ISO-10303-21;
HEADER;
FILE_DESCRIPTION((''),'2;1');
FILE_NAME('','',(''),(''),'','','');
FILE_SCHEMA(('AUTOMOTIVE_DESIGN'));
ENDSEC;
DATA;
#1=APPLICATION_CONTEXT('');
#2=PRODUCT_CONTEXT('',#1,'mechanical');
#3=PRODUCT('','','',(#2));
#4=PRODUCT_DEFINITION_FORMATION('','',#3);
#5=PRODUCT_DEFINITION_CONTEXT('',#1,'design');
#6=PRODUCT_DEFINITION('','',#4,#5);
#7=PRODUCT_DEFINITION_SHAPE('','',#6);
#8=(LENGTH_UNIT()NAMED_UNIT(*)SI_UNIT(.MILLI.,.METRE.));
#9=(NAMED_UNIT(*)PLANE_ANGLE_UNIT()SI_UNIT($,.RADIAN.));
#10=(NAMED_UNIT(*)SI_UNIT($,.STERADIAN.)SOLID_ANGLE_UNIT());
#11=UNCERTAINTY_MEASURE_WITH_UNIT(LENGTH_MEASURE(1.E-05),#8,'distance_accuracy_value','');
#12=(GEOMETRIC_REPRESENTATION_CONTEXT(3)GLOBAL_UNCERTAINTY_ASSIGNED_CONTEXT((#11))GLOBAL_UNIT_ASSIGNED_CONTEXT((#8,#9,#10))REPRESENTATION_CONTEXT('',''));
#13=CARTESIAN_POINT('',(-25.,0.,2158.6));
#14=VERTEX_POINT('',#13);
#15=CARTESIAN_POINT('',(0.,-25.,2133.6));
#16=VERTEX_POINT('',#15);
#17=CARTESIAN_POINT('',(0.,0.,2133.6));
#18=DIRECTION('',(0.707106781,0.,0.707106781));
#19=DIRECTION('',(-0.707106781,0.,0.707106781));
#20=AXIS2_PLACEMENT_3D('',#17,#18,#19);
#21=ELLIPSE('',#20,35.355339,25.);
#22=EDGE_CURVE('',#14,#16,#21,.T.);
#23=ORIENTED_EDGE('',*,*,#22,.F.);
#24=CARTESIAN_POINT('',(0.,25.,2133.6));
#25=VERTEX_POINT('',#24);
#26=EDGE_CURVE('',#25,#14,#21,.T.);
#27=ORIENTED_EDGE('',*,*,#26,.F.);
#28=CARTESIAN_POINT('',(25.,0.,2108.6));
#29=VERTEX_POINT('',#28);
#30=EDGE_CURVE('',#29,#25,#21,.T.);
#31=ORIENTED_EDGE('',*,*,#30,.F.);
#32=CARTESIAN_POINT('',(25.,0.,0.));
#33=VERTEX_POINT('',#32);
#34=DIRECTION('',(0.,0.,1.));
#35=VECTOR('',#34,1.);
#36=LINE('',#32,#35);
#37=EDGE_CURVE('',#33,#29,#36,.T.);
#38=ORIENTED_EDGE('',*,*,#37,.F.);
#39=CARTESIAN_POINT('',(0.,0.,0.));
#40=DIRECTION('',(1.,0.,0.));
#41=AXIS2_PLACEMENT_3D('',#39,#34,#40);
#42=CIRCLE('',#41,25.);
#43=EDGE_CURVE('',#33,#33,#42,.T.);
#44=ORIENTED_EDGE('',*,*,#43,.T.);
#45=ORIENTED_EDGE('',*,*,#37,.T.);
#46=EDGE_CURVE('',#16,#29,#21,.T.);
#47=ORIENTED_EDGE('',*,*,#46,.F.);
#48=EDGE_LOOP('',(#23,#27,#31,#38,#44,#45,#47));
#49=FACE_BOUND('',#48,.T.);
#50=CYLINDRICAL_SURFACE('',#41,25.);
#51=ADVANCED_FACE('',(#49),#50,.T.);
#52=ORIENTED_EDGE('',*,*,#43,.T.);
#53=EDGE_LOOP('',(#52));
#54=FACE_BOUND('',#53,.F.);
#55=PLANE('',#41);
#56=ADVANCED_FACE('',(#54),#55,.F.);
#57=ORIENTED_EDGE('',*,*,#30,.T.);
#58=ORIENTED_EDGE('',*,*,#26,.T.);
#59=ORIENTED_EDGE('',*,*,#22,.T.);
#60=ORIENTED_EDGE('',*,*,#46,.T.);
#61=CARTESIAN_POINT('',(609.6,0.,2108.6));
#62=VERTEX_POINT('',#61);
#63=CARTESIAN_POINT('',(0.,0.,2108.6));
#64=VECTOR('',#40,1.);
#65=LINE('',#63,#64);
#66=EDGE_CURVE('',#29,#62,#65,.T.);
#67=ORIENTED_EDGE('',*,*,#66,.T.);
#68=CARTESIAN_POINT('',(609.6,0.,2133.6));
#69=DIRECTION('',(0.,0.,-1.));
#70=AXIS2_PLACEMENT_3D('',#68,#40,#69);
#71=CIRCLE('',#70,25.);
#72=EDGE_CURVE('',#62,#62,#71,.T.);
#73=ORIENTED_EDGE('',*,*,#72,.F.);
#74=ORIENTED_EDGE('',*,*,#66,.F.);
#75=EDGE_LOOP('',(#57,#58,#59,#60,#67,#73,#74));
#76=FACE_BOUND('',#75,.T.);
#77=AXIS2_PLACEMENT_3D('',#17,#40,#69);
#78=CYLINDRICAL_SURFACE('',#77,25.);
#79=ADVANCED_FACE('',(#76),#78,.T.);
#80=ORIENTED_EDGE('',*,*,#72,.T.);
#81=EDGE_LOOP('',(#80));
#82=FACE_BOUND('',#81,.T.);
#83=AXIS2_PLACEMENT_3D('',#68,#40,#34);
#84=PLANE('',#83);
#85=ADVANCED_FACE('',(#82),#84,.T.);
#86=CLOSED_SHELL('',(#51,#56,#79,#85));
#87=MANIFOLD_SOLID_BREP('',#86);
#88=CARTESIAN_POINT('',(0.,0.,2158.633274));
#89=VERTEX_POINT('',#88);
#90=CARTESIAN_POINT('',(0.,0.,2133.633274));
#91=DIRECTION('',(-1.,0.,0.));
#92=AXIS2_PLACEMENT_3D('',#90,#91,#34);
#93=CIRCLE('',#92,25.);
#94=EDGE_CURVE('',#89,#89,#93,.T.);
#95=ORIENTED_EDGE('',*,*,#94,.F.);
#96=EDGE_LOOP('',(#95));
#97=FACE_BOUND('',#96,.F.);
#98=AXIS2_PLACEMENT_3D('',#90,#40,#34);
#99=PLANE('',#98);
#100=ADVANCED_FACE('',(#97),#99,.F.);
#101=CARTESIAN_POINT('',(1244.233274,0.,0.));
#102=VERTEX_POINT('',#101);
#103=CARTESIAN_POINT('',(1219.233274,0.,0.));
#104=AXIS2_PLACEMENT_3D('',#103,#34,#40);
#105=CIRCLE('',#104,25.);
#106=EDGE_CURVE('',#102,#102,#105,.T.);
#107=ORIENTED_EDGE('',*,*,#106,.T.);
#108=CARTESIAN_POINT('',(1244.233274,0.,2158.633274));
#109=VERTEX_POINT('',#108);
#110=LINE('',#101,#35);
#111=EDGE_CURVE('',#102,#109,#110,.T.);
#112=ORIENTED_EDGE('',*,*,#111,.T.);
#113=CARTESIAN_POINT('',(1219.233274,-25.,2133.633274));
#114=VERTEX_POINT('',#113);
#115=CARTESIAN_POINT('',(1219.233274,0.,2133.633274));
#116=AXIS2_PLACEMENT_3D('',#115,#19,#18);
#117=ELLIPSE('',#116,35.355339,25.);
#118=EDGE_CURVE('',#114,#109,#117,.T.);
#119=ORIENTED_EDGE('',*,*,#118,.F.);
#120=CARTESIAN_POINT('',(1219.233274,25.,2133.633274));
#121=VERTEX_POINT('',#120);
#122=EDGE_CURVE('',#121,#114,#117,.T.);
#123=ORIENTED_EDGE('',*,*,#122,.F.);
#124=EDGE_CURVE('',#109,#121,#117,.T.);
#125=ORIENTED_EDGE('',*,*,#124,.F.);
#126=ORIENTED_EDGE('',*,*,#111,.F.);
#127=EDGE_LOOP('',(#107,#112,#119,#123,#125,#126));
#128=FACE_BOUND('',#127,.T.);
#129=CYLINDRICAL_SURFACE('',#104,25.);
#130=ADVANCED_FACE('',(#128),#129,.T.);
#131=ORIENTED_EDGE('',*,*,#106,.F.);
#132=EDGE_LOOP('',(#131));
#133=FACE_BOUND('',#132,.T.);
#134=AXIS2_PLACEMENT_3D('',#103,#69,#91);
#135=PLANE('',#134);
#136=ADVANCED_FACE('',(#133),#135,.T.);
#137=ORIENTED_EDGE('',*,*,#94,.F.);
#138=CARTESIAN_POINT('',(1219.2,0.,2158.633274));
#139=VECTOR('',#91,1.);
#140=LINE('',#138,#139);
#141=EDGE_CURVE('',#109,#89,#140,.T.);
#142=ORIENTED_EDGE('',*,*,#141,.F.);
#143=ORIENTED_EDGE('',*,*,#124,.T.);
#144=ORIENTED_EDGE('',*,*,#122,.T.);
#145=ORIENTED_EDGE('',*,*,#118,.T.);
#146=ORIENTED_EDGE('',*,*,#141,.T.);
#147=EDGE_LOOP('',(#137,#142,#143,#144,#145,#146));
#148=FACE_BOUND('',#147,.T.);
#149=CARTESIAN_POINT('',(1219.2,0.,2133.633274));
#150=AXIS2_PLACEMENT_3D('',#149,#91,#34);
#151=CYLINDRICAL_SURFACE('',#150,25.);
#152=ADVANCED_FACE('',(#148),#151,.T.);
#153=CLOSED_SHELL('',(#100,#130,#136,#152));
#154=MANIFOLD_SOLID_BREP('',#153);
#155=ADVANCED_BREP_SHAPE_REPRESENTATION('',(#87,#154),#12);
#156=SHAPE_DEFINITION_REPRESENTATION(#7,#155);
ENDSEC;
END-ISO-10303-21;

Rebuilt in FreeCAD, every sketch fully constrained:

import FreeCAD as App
import Part
import Sketcher
from FreeCAD import Vector
Q = App.Units.Quantity

doc = App.newDocument("Part")
body = doc.addObject("PartDesign::Body", "Body")

sketch1 = doc.addObject("Sketcher::SketchObject", "Sketch")
body.addObject(sketch1)
sketch1.AttachmentSupport = (doc.XY_Plane, [""])
sketch1.MapMode = "FlatFace"
sketch1.addGeometry(Part.Circle(Vector(0, 0, 0), Vector(0, 0, 1), 25), False)
sketch1.addConstraint([
    Sketcher.Constraint("Coincident", 0, 3, -1, 1),
    Sketcher.Constraint("Diameter", 0, 50.0),
])

sketch2 = doc.addObject("Sketcher::SketchObject", "Sketch001")
body.addObject(sketch2)
sketch2.AttachmentSupport = (doc.XZ_Plane, [""])
sketch2.MapMode = "FlatFace"
sketch2.addGeometry([
    Part.LineSegment(Vector(0, 0, 0), Vector(0, 2134, 0)),
    Part.LineSegment(Vector(0, 2134, 0), Vector(610, 2134, 0)),
], False)
sketch2.addConstraint([
    Sketcher.Constraint("Coincident", 0, 2, 1, 1),
    Sketcher.Constraint("Vertical", 0),
    Sketcher.Constraint("Horizontal", 1),
    Sketcher.Constraint("Coincident", 0, 1, -1, 1),
    Sketcher.Constraint("DistanceX", 1, 1, 1, 2, Q("24 in")),
    Sketcher.Constraint("DistanceY", 0, 1, 0, 2, Q("84 in")),
])
doc.recompute()

additivepipe = doc.addObject("PartDesign::AdditivePipe", "AdditivePipe")
body.addObject(additivepipe)
additivepipe.Profile = sketch1
additivepipe.Spine = (sketch2, ["Edge1", "Edge2"])
additivepipe.Transition = "Right corner"
body2 = doc.addObject("PartDesign::Body", "Body001")

sketch3 = doc.addObject("Sketcher::SketchObject", "Sketch002")
body2.addObject(sketch3)
sketch3.AttachmentSupport = (doc.getObject("XY_Plane001"), [""])
sketch3.MapMode = "FlatFace"
sketch3.addGeometry(Part.Circle(Vector(1219, 0, 0), Vector(0, 0, 1), 25), False)
sketch3.addConstraint([
    Sketcher.Constraint("PointOnObject", 0, 3, -1),
    Sketcher.Constraint("Diameter", 0, 50.0),
    Sketcher.Constraint("DistanceX", -1, 1, 0, 3, 1219.233274),
])

sketch4 = doc.addObject("Sketcher::SketchObject", "Sketch003")
body2.addObject(sketch4)
sketch4.AttachmentSupport = (doc.getObject("XZ_Plane001"), [""])
sketch4.MapMode = "FlatFace"
sketch4.addGeometry([
    Part.LineSegment(Vector(1219, 0, 0), Vector(1219, 2134, 0)),
    Part.LineSegment(Vector(1219, 2134, 0), Vector(0, 2134, 0)),
], False)
sketch4.addConstraint([
    Sketcher.Constraint("Coincident", 0, 2, 1, 1),
    Sketcher.Constraint("Vertical", 0),
    Sketcher.Constraint("Horizontal", 1),
    Sketcher.Constraint("PointOnObject", 0, 1, -1),
    Sketcher.Constraint("PointOnObject", 1, 2, -2),
    Sketcher.Constraint("DistanceX", 1, 2, 1, 1, Q("48 in")),
    Sketcher.Constraint("DistanceY", 0, 1, 0, 2, Q("84 in")),
])
doc.recompute()

additivepipe2 = doc.addObject("PartDesign::AdditivePipe", "AdditivePipe001")
body2.addObject(additivepipe2)
additivepipe2.Profile = sketch3
additivepipe2.Spine = (sketch4, ["Edge1", "Edge2"])
additivepipe2.Transition = "Right corner"

doc.recompute()
